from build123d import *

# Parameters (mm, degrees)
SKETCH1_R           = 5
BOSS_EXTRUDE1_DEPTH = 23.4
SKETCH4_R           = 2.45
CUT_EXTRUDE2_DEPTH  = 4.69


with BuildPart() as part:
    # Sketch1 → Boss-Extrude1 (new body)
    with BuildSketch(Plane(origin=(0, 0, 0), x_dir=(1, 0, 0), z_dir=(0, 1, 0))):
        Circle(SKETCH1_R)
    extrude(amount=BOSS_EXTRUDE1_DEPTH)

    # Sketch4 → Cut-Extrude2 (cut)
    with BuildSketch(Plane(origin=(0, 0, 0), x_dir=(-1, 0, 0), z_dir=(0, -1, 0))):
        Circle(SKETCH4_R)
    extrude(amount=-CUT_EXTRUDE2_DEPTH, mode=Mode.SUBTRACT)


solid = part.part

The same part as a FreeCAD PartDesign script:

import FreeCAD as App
import Part
import Sketcher

V = App.Vector
Q = App.Units.Quantity

doc = App.newDocument("Part")
params = doc.addObject("Spreadsheet::Sheet", "Params")
for row, (alias, value) in enumerate([
    ("sketch1_diameter", "10 mm"),
    ("pad1_length", "23.4 mm"),
    ("sketch2_diameter", "4.9 mm"),
    ("pocket1_length", "4.69 mm"),
], start=1):
    params.set(f"A{row}", alias)
    params.set(f"B{row}", "=" + value)
    params.setAlias(f"B{row}", alias)

body = doc.addObject("PartDesign::Body", "Body")

sketch1 = doc.addObject("Sketcher::SketchObject", "Sketch")
body.addObject(sketch1)
sketch1.AttachmentSupport = (doc.XZ_Plane, [""])
sketch1.MapMode = "FlatFace"
sketch1.addGeometry(Part.Circle(V(0, 0, 0), V(0, 0, 1), 5), False)
sketch1.addConstraint([
    Sketcher.Constraint("Coincident", 0, 3, -1, 1),
    Sketcher.Constraint("Diameter", 0, Q("10 mm")),
])
sketch1.setExpression("Constraints[1]", "Params.sketch1_diameter")
pad1 = doc.addObject("PartDesign::Pad", "Pad")
body.addObject(pad1)
pad1.Profile = sketch1
pad1.setExpression("Length", "Params.pad1_length")
pad1.Reversed = True

sketch2 = doc.addObject("Sketcher::SketchObject", "Sketch001")
body.addObject(sketch2)
sketch2.AttachmentSupport = (doc.XZ_Plane, [""])
sketch2.MapMode = "FlatFace"
sketch2.addGeometry(Part.Circle(V(0, 0, 0), V(0, 0, 1), 2.45), False)
sketch2.addConstraint([
    Sketcher.Constraint("Coincident", 0, 3, -1, 1),
    Sketcher.Constraint("Diameter", 0, Q("4.9 mm")),
])
sketch2.setExpression("Constraints[1]", "Params.sketch2_diameter")
pocket1 = doc.addObject("PartDesign::Pocket", "Pocket")
body.addObject(pocket1)
pocket1.Profile = sketch2
pocket1.setExpression("Length", "Params.pocket1_length")

doc.recompute()
